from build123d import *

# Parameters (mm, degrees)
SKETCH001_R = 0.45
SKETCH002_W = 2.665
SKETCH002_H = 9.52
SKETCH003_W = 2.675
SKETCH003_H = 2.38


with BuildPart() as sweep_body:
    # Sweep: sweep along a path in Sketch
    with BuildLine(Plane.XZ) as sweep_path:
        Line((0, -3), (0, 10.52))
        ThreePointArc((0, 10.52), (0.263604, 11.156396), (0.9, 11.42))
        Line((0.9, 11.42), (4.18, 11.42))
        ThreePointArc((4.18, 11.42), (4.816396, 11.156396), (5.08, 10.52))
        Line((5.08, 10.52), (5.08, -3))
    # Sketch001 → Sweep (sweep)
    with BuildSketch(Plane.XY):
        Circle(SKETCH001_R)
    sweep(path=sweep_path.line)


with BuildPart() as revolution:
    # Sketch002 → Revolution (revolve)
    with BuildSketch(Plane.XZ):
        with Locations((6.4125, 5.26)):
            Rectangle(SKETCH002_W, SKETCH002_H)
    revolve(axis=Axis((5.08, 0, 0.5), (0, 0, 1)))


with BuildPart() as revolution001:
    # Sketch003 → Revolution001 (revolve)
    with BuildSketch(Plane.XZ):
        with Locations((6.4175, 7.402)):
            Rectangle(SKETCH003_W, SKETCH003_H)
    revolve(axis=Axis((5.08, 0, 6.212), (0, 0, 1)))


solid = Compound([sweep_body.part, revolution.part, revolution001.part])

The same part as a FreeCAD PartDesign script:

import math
import FreeCAD as App
import Part
import Sketcher

V = App.Vector

doc = App.newDocument("Part")
body = doc.addObject("PartDesign::Body", "Body")

# Sketch on XY plane
sketch1 = body.newObject("Sketcher::SketchObject", "Sketch")
sketch1.AttachmentSupport = (doc.getObject("XY_Plane"), [""])
sketch1.MapMode = "FlatFace"
sketch1.addGeometry(Part.Circle(V(0, 0, 0), V(0, 0, 1), 0.45), False)
sketch1.addConstraint(Sketcher.Constraint("Coincident", 0, 3, -1, 1))
sketch1.addConstraint(Sketcher.Constraint("Diameter", 0, 0.9))

# Sketch on XZ plane
sketch2 = body.newObject("Sketcher::SketchObject", "Sketch001")
sketch2.AttachmentSupport = (doc.getObject("XZ_Plane"), [""])
sketch2.MapMode = "FlatFace"
sketch2.addGeometry(Part.LineSegment(V(0, -3, 0), V(0, 10.5, 0)), False)
sketch2.addGeometry(Part.ArcOfCircle(Part.Circle(V(0.9, 10.5, 0), V(0, 0, 1), 0.9), math.radians(90), math.radians(180)), False)
sketch2.addGeometry(Part.LineSegment(V(0.9, 11.4, 0), V(4.2, 11.4, 0)), False)
sketch2.addGeometry(Part.ArcOfCircle(Part.Circle(V(4.2, 10.5, 0), V(0, 0, 1), 0.9), math.radians(0), math.radians(90)), False)
sketch2.addGeometry(Part.LineSegment(V(5.1, 10.5, 0), V(5.1, -3, 0)), False)
sketch2.addConstraint(Sketcher.Constraint("Tangent", 0, 2, 1, 2))
sketch2.addConstraint(Sketcher.Constraint("Tangent", 1, 1, 2, 1))
sketch2.addConstraint(Sketcher.Constraint("Tangent", 2, 2, 3, 2))
sketch2.addConstraint(Sketcher.Constraint("Tangent", 3, 1, 4, 1))
sketch2.addConstraint(Sketcher.Constraint("Vertical", 0))
sketch2.addConstraint(Sketcher.Constraint("Horizontal", 2))
sketch2.addConstraint(Sketcher.Constraint("Vertical", 4))
sketch2.addConstraint(Sketcher.Constraint("Equal", 1, 3))
sketch2.addConstraint(Sketcher.Constraint("PointOnObject", 0, 1, -2))
sketch2.addConstraint(Sketcher.Constraint("Horizontal", 0, 1, 4, 2))
sketch2.addConstraint(Sketcher.Constraint("Radius", 1, 0.9))
sketch2.addConstraint(Sketcher.Constraint("DistanceY", 0, 1, -1, 1, 3.0))
sketch2.addConstraint(Sketcher.Constraint("DistanceX", 2, 1, 2, 2, 3.28))
sketch2.addConstraint(Sketcher.Constraint("DistanceY", 0, 1, 0, 2, 13.52))
doc.recompute()

additivepipe = body.newObject("PartDesign::AdditivePipe", "AdditivePipe")
additivepipe.Profile = sketch1
additivepipe.Spine = (sketch2, ["Edge1", "Edge2", "Edge3", "Edge4", "Edge5"])
body2 = doc.addObject("PartDesign::Body", "Body001")

# Sketch on XZ plane
sketch3 = body2.newObject("Sketcher::SketchObject", "Sketch002")
sketch3.AttachmentSupport = (doc.getObject("XZ_Plane001"), [""])
sketch3.MapMode = "FlatFace"
sketch3.addGeometry(Part.LineSegment(V(5.1, 10, 0), V(5.1, 0.5, 0)), False)
sketch3.addGeometry(Part.LineSegment(V(5.1, 0.5, 0), V(7.7, 0.5, 0)), False)
sketch3.addGeometry(Part.LineSegment(V(7.7, 0.5, 0), V(7.7, 10, 0)), False)
sketch3.addGeometry(Part.LineSegment(V(7.7, 10, 0), V(5.1, 10, 0)), False)
sketch3.addGeometry(Part.LineSegment(V(5.1, 0.5, 0), V(5.1, 10, 0)), True)  # axis
sketch3.addConstraint(Sketcher.Constraint("Coincident", 0, 2, 1, 1))
sketch3.addConstraint(Sketcher.Constraint("Coincident", 1, 2, 2, 1))
sketch3.addConstraint(Sketcher.Constraint("Coincident", 2, 2, 3, 1))
sketch3.addConstraint(Sketcher.Constraint("Coincident", 3, 2, 0, 1))
sketch3.addConstraint(Sketcher.Constraint("Vertical", 0))
sketch3.addConstraint(Sketcher.Constraint("Horizontal", 1))
sketch3.addConstraint(Sketcher.Constraint("Vertical", 2))
sketch3.addConstraint(Sketcher.Constraint("Horizontal", 3))
sketch3.addConstraint(Sketcher.Constraint("Vertical", 4))
sketch3.addConstraint(Sketcher.Constraint("Coincident", 4, 1, 0, 2))
sketch3.addConstraint(Sketcher.Constraint("Horizontal", 2, 2, 4, 2))
sketch3.addConstraint(Sketcher.Constraint("DistanceY", 0, 2, 0, 1, 9.52))
sketch3.addConstraint(Sketcher.Constraint("DistanceY", -1, 1, 0, 2, 0.5))
sketch3.addConstraint(Sketcher.Constraint("DistanceX", 1, 1, 1, 2, 2.665))
sketch3.addConstraint(Sketcher.Constraint("DistanceX", -1, 1, 0, 2, 5.08))
revolution = body2.newObject("PartDesign::Revolution", "Revolution")
revolution.Profile = sketch3
revolution.ReferenceAxis = (sketch3, ["Axis0"])
revolution.Angle = 360
body3 = doc.addObject("PartDesign::Body", "Body002")

# Sketch on XZ plane
sketch4 = body3.newObject("Sketcher::SketchObject", "Sketch003")
sketch4.AttachmentSupport = (doc.getObject("XZ_Plane002"), [""])
sketch4.MapMode = "FlatFace"
sketch4.addGeometry(Part.LineSegment(V(5.1, 8.6, 0), V(5.1, 6.2, 0)), False)
sketch4.addGeometry(Part.LineSegment(V(5.1, 6.2, 0), V(7.8, 6.2, 0)), False)
sketch4.addGeometry(Part.LineSegment(V(7.8, 6.2, 0), V(7.8, 8.6, 0)), False)
sketch4.addGeometry(Part.LineSegment(V(7.8, 8.6, 0), V(5.1, 8.6, 0)), False)
sketch4.addGeometry(Part.LineSegment(V(5.1, 6.2, 0), V(5.1, 8.6, 0)), True)  # axis
sketch4.addConstraint(Sketcher.Constraint("Coincident", 0, 2, 1, 1))
sketch4.addConstraint(Sketcher.Constraint("Coincident", 1, 2, 2, 1))
sketch4.addConstraint(Sketcher.Constraint("Coincident", 2, 2, 3, 1))
sketch4.addConstraint(Sketcher.Constraint("Coincident", 3, 2, 0, 1))
sketch4.addConstraint(Sketcher.Constraint("Vertical", 0))
sketch4.addConstraint(Sketcher.Constraint("Horizontal", 1))
sketch4.addConstraint(Sketcher.Constraint("Vertical", 2))
sketch4.addConstraint(Sketcher.Constraint("Horizontal", 3))
sketch4.addConstraint(Sketcher.Constraint("Vertical", 4))
sketch4.addConstraint(Sketcher.Constraint("Coincident", 4, 1, 0, 2))
sketch4.addConstraint(Sketcher.Constraint("Horizontal", 2, 2, 4, 2))
sketch4.addConstraint(Sketcher.Constraint("DistanceY", 0, 2, 0, 1, 2.38))
sketch4.addConstraint(Sketcher.Constraint("DistanceX", 1, 1, 1, 2, 2.675))
sketch4.addConstraint(Sketcher.Constraint("DistanceX", -1, 1, 0, 2, 5.08))
sketch4.addConstraint(Sketcher.Constraint("DistanceY", -1, 1, 0, 2, 6.212))
revolution2 = body3.newObject("PartDesign::Revolution", "Revolution001")
revolution2.Profile = sketch4
revolution2.ReferenceAxis = (sketch4, ["Axis0"])
revolution2.Angle = 360

doc.recompute()
